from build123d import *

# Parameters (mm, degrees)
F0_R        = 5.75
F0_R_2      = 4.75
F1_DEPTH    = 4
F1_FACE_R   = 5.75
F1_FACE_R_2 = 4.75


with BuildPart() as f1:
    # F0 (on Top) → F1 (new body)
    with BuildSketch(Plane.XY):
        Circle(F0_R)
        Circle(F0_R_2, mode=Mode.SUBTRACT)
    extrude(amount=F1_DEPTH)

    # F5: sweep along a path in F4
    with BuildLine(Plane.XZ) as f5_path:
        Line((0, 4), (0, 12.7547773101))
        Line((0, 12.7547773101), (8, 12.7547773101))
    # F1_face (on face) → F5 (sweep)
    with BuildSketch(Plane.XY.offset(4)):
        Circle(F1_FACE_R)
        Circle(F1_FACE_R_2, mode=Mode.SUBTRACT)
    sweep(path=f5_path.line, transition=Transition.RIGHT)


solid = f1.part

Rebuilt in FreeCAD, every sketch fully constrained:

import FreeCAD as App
import Part
import Sketcher
from FreeCAD import Vector

doc = App.newDocument("Part")
params = doc.addObject("Spreadsheet::Sheet", "Params")
for row, (alias, value) in enumerate([
    ("sketch1_diameter", "11.5 mm"),
    ("sketch1_diameter2", "9.5 mm"),
    ("pad1_length", "4 mm"),
    ("sketch2_diameter", "11.5 mm"),
    ("sketch2_diameter2", "9.5 mm"),
    ("sketch3_width", "8 mm"),
], start=1):
    params.set(f"A{row}", alias)
    params.set(f"B{row}", "=" + value)
    params.setAlias(f"B{row}", alias)

body = doc.addObject("PartDesign::Body", "Body")

# Sketch on XY plane
sketch1 = body.newObject("Sketcher::SketchObject", "Sketch")
sketch1.AttachmentSupport = (doc.getObject("XY_Plane"), [""])
sketch1.MapMode = "FlatFace"
sketch1.addGeometry(Part.Circle(Vector(0, 0, 0), Vector(0, 0, 1), 5.8), False)
sketch1.addGeometry(Part.Circle(Vector(0, 0, 0), Vector(0, 0, 1), 4.8), False)
sketch1.addConstraint(Sketcher.Constraint("Coincident", 0, 3, -1, 1))
sketch1.addConstraint(Sketcher.Constraint("Coincident", 1, 3, -1, 1))
sketch1.addConstraint(Sketcher.Constraint("Diameter", 0, 11.5))
sketch1.addConstraint(Sketcher.Constraint("Diameter", 1, 9.5))
sketch1.setExpression("Constraints[2]", "Params.sketch1_diameter")
sketch1.setExpression("Constraints[3]", "Params.sketch1_diameter2")
pad1 = body.newObject("PartDesign::Pad", "Pad")
pad1.Profile = sketch1
pad1.setExpression("Length", "Params.pad1_length")

# Sketch on XY plane
sketch2 = body.newObject("Sketcher::SketchObject", "Sketch001")
sketch2.AttachmentSupport = (doc.getObject("XY_Plane"), [""])
sketch2.MapMode = "FlatFace"
sketch2.AttachmentOffset = App.Placement(Vector(0, 0, 4), App.Rotation())
sketch2.addGeometry(Part.Circle(Vector(0, 0, 0), Vector(0, 0, 1), 5.8), False)
sketch2.addGeometry(Part.Circle(Vector(0, 0, 0), Vector(0, 0, 1), 4.8), False)
sketch2.addConstraint(Sketcher.Constraint("Coincident", 0, 3, -1, 1))
sketch2.addConstraint(Sketcher.Constraint("Coincident", 1, 3, -1, 1))
sketch2.addConstraint(Sketcher.Constraint("Diameter", 0, 11.5))
sketch2.addConstraint(Sketcher.Constraint("Diameter", 1, 9.5))
sketch2.setExpression("Constraints[2]", "Params.sketch2_diameter")
sketch2.setExpression("Constraints[3]", "Params.sketch2_diameter2")

# Sketch on XZ plane
sketch3 = body.newObject("Sketcher::SketchObject", "Sketch002")
sketch3.AttachmentSupport = (doc.getObject("XZ_Plane"), [""])
sketch3.MapMode = "FlatFace"
sketch3.addGeometry(Part.LineSegment(Vector(0, 4, 0), Vector(0, 13, 0)), False)
sketch3.addGeometry(Part.LineSegment(Vector(0, 13, 0), Vector(8, 13, 0)), False)
sketch3.addConstraint(Sketcher.Constraint("Coincident", 0, 2, 1, 1))
sketch3.addConstraint(Sketcher.Constraint("Vertical", 0))
sketch3.addConstraint(Sketcher.Constraint("Horizontal", 1))
sketch3.addConstraint(Sketcher.Constraint("PointOnObject", 0, 1, -2))
sketch3.addConstraint(Sketcher.Constraint("DistanceX", 1, 1, 1, 2, 8.0))
sketch3.addConstraint(Sketcher.Constraint("DistanceY", -1, 1, 0, 1, 4.0))
sketch3.addConstraint(Sketcher.Constraint("DistanceY", 0, 1, 0, 2, 8.754777))
sketch3.setExpression("Constraints[4]", "Params.sketch3_width")
doc.recompute()

additivepipe = body.newObject("PartDesign::AdditivePipe", "AdditivePipe")
additivepipe.Profile = sketch2
additivepipe.Spine = (sketch3, ["Edge1", "Edge2"])
additivepipe.Transition = "Right corner"

doc.recompute()
